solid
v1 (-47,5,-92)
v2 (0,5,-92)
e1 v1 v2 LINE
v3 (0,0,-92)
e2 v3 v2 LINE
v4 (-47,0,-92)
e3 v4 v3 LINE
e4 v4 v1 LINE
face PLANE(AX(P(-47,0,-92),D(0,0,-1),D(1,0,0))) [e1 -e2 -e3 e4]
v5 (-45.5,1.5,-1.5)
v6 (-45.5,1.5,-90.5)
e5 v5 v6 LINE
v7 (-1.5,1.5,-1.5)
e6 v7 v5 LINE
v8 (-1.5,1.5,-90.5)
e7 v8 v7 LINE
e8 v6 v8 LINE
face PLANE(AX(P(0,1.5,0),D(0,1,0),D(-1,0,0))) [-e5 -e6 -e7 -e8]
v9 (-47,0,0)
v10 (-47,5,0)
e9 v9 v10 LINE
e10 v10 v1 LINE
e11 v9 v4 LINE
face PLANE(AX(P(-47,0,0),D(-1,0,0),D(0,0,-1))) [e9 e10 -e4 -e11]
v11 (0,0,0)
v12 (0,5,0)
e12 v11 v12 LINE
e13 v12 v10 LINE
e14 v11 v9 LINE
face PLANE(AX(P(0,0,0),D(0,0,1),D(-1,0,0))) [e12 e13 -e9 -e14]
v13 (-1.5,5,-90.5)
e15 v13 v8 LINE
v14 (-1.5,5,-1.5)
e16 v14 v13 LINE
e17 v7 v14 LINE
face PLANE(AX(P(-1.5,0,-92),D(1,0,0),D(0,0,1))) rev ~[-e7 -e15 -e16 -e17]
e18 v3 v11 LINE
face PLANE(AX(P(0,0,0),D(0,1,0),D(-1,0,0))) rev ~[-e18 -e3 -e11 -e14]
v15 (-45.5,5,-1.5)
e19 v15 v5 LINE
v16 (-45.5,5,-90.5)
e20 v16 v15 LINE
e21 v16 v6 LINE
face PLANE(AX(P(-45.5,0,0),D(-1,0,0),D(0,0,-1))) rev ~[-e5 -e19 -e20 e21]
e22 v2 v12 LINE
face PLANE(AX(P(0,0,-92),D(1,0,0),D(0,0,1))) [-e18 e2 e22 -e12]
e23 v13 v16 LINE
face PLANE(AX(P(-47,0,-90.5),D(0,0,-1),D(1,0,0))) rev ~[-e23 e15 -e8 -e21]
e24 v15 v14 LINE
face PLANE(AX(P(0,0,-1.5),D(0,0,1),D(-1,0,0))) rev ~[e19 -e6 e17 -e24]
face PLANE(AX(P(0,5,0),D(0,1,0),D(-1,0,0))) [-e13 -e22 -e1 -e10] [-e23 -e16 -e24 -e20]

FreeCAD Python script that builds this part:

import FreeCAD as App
import Part
import Sketcher
from FreeCAD import Vector


def faces_at(feature, points):
    """Names of the faces that lie closest to the given points."""
    faces = feature.Shape.Faces
    near = lambda p: min(range(len(faces)), key=lambda i: faces[i].distToShape(Part.Vertex(*p))[0])
    return sorted({f"Face{near(p) + 1}" for p in points})


def add_polygon(sketch, points):
    """Adds a closed chain of lines whose ends are joined by coincident constraints."""
    first, n = sketch.GeometryCount, len(points)
    for a, b in zip(points, points[1:] + points[:1]):
        sketch.addGeometry(Part.LineSegment(App.Vector(*a, 0), App.Vector(*b, 0)), False)
    for i in range(n):
        sketch.addConstraint(Sketcher.Constraint("Coincident", first + i, 2, first + (i + 1) % n, 1))

doc = App.newDocument("Part")
body = doc.addObject("PartDesign::Body", "Body")

# Sketch on XZ plane
sketch1 = doc.addObject("Sketcher::SketchObject", "Sketch")
body.addObject(sketch1)
sketch1.AttachmentSupport = (doc.XZ_Plane, [""])
sketch1.MapMode = "FlatFace"
add_polygon(sketch1, [(-47, 0), (0, 0), (0, -92), (-47, -92)])  # lines 0-3
sketch1.addConstraint(Sketcher.Constraint("Horizontal", 0))
sketch1.addConstraint(Sketcher.Constraint("Vertical", 1))
sketch1.addConstraint(Sketcher.Constraint("Horizontal", 2))
sketch1.addConstraint(Sketcher.Constraint("Vertical", 3))
sketch1.addConstraint(Sketcher.Constraint("Coincident", 0, 2, -1, 1))
sketch1.addConstraint(Sketcher.Constraint("DistanceX", 0, 1, 0, 2, 47.0))
sketch1.addConstraint(Sketcher.Constraint("DistanceY", 1, 2, 1, 1, 92.0))
pad1 = doc.addObject("PartDesign::Pad", "Pad")
body.addObject(pad1)
pad1.Profile = sketch1
pad1.Length = 5
pad1.Reversed = True
doc.recompute()

thickness = doc.addObject("PartDesign::Thickness", "Thickness")
body.addObject(thickness)
thickness.Base = (pad1, faces_at(pad1, [(-15.667, 5, -30.667)]))
thickness.Value = 1.5
thickness.Reversed = True
thickness.Join = "Intersection"

doc.recompute()
